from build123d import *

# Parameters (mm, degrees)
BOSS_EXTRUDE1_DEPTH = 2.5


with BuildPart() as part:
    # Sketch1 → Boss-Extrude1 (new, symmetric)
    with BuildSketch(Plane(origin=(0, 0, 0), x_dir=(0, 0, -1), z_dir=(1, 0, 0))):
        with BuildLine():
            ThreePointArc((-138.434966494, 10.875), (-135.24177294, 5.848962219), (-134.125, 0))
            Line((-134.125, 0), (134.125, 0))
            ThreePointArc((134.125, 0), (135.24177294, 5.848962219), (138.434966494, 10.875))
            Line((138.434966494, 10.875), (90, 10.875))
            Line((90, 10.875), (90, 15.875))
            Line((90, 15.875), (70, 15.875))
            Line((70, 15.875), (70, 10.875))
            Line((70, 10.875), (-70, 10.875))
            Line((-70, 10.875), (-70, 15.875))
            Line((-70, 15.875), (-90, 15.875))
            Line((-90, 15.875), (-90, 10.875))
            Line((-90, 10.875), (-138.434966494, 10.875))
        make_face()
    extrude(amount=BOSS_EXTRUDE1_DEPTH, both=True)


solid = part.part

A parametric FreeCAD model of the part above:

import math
import FreeCAD as App
import Part
import Sketcher
Q = App.Units.Quantity

doc = App.newDocument("Part")
body = doc.addObject("PartDesign::Body", "Body")

# Sketch on YZ plane
sketch1 = body.newObject("Sketcher::SketchObject", "Sketch")
sketch1.AttachmentSupport = (doc.getObject("YZ_Plane"), [""])
sketch1.MapMode = "FlatFace"
sketch1.addGeometry([
    Part.ArcOfCircle(Part.Circle(App.Vector(0, 150, 0), App.Vector(0, 0, 1), 16), math.radians(-90), math.radians(-47)),  # 0
    Part.LineSegment(App.Vector(0, 134, 0), App.Vector(0, -134, 0)),  # 1
    Part.ArcOfCircle(Part.Circle(App.Vector(0, -150, 0), App.Vector(0, 0, 1), 16), math.radians(47), math.radians(90)),  # 2
    Part.LineSegment(App.Vector(11, -138, 0), App.Vector(11, -90, 0)),  # 3
    Part.LineSegment(App.Vector(11, -90, 0), App.Vector(16, -90, 0)),  # 4
    Part.LineSegment(App.Vector(16, -90, 0), App.Vector(16, -70, 0)),  # 5
    Part.LineSegment(App.Vector(16, -70, 0), App.Vector(11, -70, 0)),  # 6
    Part.LineSegment(App.Vector(11, -70, 0), App.Vector(11, 70, 0)),  # 7
    Part.LineSegment(App.Vector(11, 70, 0), App.Vector(16, 70, 0)),  # 8
    Part.LineSegment(App.Vector(16, 70, 0), App.Vector(16, 90, 0)),  # 9
    Part.LineSegment(App.Vector(16, 90, 0), App.Vector(11, 90, 0)),  # 10
    Part.LineSegment(App.Vector(11, 90, 0), App.Vector(11, 138, 0)),  # 11
], False)
sketch1.addConstraint([
    Sketcher.Constraint("Coincident", 0, 1, 1, 1),
    Sketcher.Constraint("Coincident", 1, 2, 2, 2),
    Sketcher.Constraint("Coincident", 2, 1, 3, 1),
    Sketcher.Constraint("Coincident", 3, 2, 4, 1),
    Sketcher.Constraint("Coincident", 4, 2, 5, 1),
    Sketcher.Constraint("Coincident", 5, 2, 6, 1),
    Sketcher.Constraint("Coincident", 6, 2, 7, 1),
    Sketcher.Constraint("Coincident", 7, 2, 8, 1),
    Sketcher.Constraint("Coincident", 8, 2, 9, 1),
    Sketcher.Constraint("Coincident", 9, 2, 10, 1),
    Sketcher.Constraint("Coincident", 10, 2, 11, 1),
    Sketcher.Constraint("Coincident", 11, 2, 0, 2),
    Sketcher.Constraint("Vertical", 1),
    Sketcher.Constraint("Vertical", 3),
    Sketcher.Constraint("Horizontal", 4),
    Sketcher.Constraint("Vertical", 5),
    Sketcher.Constraint("Horizontal", 6),
    Sketcher.Constraint("Vertical", 7),
    Sketcher.Constraint("Horizontal", 8),
    Sketcher.Constraint("Vertical", 9),
    Sketcher.Constraint("Horizontal", 10),
    Sketcher.Constraint("Vertical", 11),
    Sketcher.Constraint("Equal", 0, 2),
    Sketcher.Constraint("Symmetric", 0, 3, 2, 3, -1, 1),
    Sketcher.Constraint("Symmetric", 5, 2, 8, 2, -1),
    Sketcher.Constraint("Symmetric", 3, 2, 10, 2, -1),
    Sketcher.Constraint("PointOnObject", 0, 3, -2),
    Sketcher.Constraint("PointOnObject", 0, 1, -2),
    Sketcher.Constraint("Vertical", 3, 2, 6, 2),
    Sketcher.Constraint("DistanceX", 4, 1, 4, 2, Q("5 mm")),
    Sketcher.Constraint("DistanceY", 5, 1, 5, 2, Q("20 mm")),
    Sketcher.Constraint("DistanceY", 7, 1, 7, 2, Q("140 mm")),
    Sketcher.Constraint("DistanceY", -1, 1, 0, 3, Q("150 mm")),
    Sketcher.Constraint("Radius", 0, Q("15.875 mm")),
    Sketcher.Constraint("DistanceX", -1, 1, 2, 1, Q("10.875 mm")),
])
pad1 = body.newObject("PartDesign::Pad", "Pad")
pad1.Profile = sketch1
pad1.Length = 5
pad1.Midplane = True

doc.recompute()
